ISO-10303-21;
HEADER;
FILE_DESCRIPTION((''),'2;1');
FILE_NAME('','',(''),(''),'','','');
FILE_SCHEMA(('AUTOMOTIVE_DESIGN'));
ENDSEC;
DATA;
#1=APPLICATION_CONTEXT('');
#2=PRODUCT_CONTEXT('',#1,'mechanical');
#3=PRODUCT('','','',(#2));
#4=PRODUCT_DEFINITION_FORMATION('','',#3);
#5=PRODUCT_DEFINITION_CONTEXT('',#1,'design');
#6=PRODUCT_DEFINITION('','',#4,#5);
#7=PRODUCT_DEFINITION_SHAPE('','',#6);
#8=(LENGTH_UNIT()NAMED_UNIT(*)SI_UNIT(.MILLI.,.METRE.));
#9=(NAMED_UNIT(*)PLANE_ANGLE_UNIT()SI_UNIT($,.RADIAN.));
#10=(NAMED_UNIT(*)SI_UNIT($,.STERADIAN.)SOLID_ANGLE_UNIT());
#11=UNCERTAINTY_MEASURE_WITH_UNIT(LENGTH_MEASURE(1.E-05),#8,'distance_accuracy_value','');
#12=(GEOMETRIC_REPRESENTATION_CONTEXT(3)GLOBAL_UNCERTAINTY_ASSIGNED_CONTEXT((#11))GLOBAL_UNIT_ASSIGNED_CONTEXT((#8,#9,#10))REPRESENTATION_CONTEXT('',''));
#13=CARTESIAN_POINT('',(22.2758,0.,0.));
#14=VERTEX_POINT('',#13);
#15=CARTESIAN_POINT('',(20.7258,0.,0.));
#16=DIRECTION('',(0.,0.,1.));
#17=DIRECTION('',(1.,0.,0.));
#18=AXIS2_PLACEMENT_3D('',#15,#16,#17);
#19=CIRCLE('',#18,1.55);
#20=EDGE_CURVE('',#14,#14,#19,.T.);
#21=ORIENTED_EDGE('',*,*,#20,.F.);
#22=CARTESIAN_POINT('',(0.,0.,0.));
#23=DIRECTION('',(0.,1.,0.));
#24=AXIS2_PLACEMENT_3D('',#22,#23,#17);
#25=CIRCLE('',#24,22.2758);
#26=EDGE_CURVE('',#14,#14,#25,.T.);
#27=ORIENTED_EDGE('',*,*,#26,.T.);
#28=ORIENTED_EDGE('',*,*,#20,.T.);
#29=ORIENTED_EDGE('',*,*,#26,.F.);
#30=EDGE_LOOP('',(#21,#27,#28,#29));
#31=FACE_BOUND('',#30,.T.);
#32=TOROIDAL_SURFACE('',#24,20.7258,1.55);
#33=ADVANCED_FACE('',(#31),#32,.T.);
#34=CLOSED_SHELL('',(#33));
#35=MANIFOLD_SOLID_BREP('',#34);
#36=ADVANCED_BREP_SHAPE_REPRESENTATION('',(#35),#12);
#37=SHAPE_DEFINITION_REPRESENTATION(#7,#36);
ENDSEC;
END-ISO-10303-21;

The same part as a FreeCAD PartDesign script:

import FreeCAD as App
import Part
import Sketcher
from FreeCAD import Vector

doc = App.newDocument("Part")
body = doc.addObject("PartDesign::Body", "Body")

sketch1 = body.newObject("Sketcher::SketchObject", "Sketch")
sketch1.AttachmentSupport = (doc.getObject("XY_Plane"), [""])
sketch1.MapMode = "FlatFace"
sketch1.addGeometry(Part.Circle(Vector(20.7258, 0, 0), Vector(0, 0, 1), 1.55), False)
sketch1.addConstraint([
    Sketcher.Constraint("PointOnObject", 0, 3, -1),
    Sketcher.Constraint("Diameter", 0, 3.1),
    Sketcher.Constraint("DistanceX", -1, 1, 0, 3, 20.7258),
])
revolution = body.newObject("PartDesign::Revolution", "Revolution")
revolution.Profile = sketch1
revolution.ReferenceAxis = (sketch1, ["V_Axis"])
revolution.Angle = 360

doc.recompute()
